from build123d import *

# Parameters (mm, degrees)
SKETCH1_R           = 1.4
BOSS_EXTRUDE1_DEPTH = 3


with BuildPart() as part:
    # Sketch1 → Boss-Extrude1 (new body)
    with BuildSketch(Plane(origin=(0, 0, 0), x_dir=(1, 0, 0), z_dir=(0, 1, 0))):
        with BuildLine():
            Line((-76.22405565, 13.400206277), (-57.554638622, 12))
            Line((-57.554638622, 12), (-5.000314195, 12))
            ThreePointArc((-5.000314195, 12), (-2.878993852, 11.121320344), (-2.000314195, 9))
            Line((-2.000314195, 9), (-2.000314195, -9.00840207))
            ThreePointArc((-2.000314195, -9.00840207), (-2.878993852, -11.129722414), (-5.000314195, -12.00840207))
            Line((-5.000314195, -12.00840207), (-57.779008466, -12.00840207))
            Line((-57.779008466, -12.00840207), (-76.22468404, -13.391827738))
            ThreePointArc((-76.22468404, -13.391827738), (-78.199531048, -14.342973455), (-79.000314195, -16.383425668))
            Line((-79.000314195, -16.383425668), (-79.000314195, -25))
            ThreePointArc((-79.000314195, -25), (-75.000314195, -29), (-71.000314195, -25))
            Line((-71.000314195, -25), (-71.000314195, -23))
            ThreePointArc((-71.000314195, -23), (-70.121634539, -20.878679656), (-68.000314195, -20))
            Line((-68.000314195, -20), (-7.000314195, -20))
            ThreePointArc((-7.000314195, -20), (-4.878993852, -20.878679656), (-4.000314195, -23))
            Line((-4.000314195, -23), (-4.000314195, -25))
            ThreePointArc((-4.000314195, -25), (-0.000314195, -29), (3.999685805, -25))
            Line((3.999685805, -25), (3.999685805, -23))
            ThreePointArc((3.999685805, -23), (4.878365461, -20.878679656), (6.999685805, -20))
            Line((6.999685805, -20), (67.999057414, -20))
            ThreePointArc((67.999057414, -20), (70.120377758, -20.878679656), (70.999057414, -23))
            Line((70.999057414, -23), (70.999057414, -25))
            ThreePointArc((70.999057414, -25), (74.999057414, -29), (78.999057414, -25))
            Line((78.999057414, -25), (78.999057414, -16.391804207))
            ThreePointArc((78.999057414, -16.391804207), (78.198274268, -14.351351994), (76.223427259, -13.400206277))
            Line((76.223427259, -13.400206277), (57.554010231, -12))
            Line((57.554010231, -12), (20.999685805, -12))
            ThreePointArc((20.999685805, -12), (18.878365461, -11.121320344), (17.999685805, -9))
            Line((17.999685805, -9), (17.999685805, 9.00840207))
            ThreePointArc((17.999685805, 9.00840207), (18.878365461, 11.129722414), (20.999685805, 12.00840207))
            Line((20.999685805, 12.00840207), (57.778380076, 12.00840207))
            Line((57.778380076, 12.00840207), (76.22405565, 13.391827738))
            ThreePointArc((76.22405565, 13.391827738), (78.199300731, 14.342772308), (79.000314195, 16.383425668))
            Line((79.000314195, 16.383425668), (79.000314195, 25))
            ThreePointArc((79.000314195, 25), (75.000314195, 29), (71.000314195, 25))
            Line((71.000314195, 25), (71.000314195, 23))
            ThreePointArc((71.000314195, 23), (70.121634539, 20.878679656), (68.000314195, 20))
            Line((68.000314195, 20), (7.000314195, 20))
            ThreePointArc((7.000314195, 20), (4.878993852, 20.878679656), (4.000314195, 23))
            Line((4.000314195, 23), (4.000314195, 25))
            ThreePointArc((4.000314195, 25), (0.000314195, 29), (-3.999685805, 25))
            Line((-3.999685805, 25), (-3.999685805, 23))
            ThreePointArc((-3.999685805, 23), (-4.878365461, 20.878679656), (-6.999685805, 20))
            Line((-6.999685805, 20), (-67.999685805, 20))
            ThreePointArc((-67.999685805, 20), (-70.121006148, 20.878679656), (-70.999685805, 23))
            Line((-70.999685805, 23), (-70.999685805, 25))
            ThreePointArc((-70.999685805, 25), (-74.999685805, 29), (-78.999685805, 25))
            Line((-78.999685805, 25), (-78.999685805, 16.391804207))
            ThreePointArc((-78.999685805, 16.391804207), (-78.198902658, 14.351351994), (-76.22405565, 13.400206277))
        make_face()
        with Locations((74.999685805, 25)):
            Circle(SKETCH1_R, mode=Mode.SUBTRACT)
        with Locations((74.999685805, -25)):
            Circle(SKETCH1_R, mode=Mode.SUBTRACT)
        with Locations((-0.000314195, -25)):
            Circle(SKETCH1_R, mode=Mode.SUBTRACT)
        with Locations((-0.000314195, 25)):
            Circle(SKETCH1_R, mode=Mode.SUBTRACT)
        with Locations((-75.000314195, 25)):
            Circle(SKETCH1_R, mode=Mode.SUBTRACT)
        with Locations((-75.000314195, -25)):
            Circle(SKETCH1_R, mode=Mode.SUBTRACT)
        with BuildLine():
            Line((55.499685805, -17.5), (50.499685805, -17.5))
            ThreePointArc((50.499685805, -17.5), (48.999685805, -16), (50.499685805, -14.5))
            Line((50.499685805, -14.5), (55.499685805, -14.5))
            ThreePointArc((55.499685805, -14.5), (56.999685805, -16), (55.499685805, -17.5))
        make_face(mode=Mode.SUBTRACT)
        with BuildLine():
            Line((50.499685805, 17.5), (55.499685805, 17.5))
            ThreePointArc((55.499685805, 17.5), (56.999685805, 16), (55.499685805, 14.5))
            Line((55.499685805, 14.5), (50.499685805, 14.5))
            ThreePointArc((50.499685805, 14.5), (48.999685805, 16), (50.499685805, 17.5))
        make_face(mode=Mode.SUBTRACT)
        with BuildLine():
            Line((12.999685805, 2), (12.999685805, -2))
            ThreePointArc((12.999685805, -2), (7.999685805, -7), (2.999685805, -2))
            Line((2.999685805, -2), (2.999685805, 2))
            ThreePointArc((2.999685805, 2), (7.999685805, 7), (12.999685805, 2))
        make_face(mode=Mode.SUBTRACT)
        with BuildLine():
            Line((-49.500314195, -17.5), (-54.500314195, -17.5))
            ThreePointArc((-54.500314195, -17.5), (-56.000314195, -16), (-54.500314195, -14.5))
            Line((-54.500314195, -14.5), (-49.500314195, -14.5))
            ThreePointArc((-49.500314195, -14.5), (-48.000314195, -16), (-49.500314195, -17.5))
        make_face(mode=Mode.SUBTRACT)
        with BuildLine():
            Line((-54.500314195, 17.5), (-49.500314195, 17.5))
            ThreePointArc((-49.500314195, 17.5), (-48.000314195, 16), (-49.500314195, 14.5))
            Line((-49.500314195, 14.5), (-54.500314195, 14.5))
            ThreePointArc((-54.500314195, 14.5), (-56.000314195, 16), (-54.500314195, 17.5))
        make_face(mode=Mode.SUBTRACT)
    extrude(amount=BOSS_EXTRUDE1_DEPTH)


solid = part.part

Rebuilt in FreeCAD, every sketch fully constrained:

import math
import FreeCAD as App
import Part
import Sketcher

V = App.Vector

doc = App.newDocument("Part")
body = doc.addObject("PartDesign::Body", "Body")

# Sketch on XZ plane
sketch1 = body.newObject("Sketcher::SketchObject", "Sketch")
sketch1.AttachmentSupport = (doc.getObject("XZ_Plane"), [""])
sketch1.MapMode = "FlatFace"
sketch1.addGeometry([
    Part.LineSegment(V(-76.224056, -13.400206, 0), V(-57.554639, -12, 0)),  # 0
    Part.LineSegment(V(-57.554639, -12, 0), V(-5.000314, -12, 0)),  # 1
    Part.ArcOfCircle(Part.Circle(V(-5.000314, -9, 0), V(0, 0, 1), 3), math.radians(-90), math.radians(0)),  # 2
    Part.LineSegment(V(-2.000314, -9, 0), V(-2.000314, 9.008402, 0)),  # 3
    Part.ArcOfCircle(Part.Circle(V(-5.000314, 9.008402, 0), V(0, 0, 1), 3), math.radians(0), math.radians(90)),  # 4
    Part.LineSegment(V(-5.000314, 12.008402, 0), V(-57.779008, 12.008402, 0)),  # 5
    Part.LineSegment(V(-57.779008, 12.008402, 0), V(-76.224684, 13.391828, 0)),  # 6
    Part.ArcOfCircle(Part.Circle(V(-76.000314, 16.383426, 0), V(0, 0, 1), 3), math.radians(180), math.radians(265.710847)),  # 7
    Part.LineSegment(V(-79.000314, 16.383426, 0), V(-79.000314, 25, 0)),  # 8
    Part.ArcOfCircle(Part.Circle(V(-75.000314, 25, 0), V(0, 0, 1), 4), math.radians(0), math.radians(180)),  # 9
    Part.LineSegment(V(-71.000314, 25, 0), V(-71.000314, 23, 0)),  # 10
    Part.ArcOfCircle(Part.Circle(V(-68.000314, 23, 0), V(0, 0, 1), 3), math.radians(180), math.radians(270)),  # 11
    Part.LineSegment(V(-68.000314, 20, 0), V(-7.000314, 20, 0)),  # 12
    Part.ArcOfCircle(Part.Circle(V(-7.000314, 23, 0), V(0, 0, 1), 3), math.radians(-90), math.radians(0)),  # 13
    Part.LineSegment(V(-4.000314, 23, 0), V(-4.000314, 25, 0)),  # 14
    Part.ArcOfCircle(Part.Circle(V(-0.000314, 25, 0), V(0, 0, 1), 4), math.radians(0), math.radians(180)),  # 15
    Part.LineSegment(V(3.999686, 25, 0), V(3.999686, 23, 0)),  # 16
    Part.ArcOfCircle(Part.Circle(V(6.999686, 23, 0), V(0, 0, 1), 3), math.radians(180), math.radians(270)),  # 17
    Part.LineSegment(V(6.999686, 20, 0), V(67.999057, 20, 0)),  # 18
    Part.ArcOfCircle(Part.Circle(V(67.999057, 23, 0), V(0, 0, 1), 3), math.radians(-90), math.radians(0)),  # 19
    Part.LineSegment(V(70.999057, 23, 0), V(70.999057, 25, 0)),  # 20
    Part.ArcOfCircle(Part.Circle(V(74.999057, 25, 0), V(0, 0, 1), 4), math.radians(0), math.radians(180)),  # 21
    Part.LineSegment(V(78.999057, 25, 0), V(78.999057, 16.391804, 0)),  # 22
    Part.ArcOfCircle(Part.Circle(V(75.999057, 16.391804, 0), V(0, 0, 1), 3), math.radians(-85.710847), math.radians(0)),  # 23
    Part.LineSegment(V(76.223427, 13.400206, 0), V(57.55401, 12, 0)),  # 24
    Part.LineSegment(V(57.55401, 12, 0), V(20.999686, 12, 0)),  # 25
    Part.ArcOfCircle(Part.Circle(V(20.999686, 9, 0), V(0, 0, 1), 3), math.radians(90), math.radians(180)),  # 26
    Part.LineSegment(V(17.999686, 9, 0), V(17.999686, -9.008402, 0)),  # 27
    Part.ArcOfCircle(Part.Circle(V(20.999686, -9.008402, 0), V(0, 0, 1), 3), math.radians(180), math.radians(270)),  # 28
    Part.LineSegment(V(20.999686, -12.008402, 0), V(57.77838, -12.008402, 0)),  # 29
    Part.LineSegment(V(57.77838, -12.008402, 0), V(76.224056, -13.391828, 0)),  # 30
    Part.ArcOfCircle(Part.Circle(V(76.000314, -16.383473, 0), V(0, 0, 1), 3), math.radians(0.000899), math.radians(85.722882)),  # 31
    Part.LineSegment(V(79.000314, -16.383426, 0), V(79.000314, -25, 0)),  # 32
    Part.ArcOfCircle(Part.Circle(V(75.000314, -25, 0), V(0, 0, 1), 4), math.radians(180), math.radians(360)),  # 33
    Part.LineSegment(V(71.000314, -25, 0), V(71.000314, -23, 0)),  # 34
    Part.ArcOfCircle(Part.Circle(V(68.000314, -23, 0), V(0, 0, 1), 3), math.radians(0), math.radians(90)),  # 35
    Part.LineSegment(V(68.000314, -20, 0), V(7.000314, -20, 0)),  # 36
    Part.ArcOfCircle(Part.Circle(V(7.000314, -23, 0), V(0, 0, 1), 3), math.radians(90), math.radians(180)),  # 37
    Part.LineSegment(V(4.000314, -23, 0), V(4.000314, -25, 0)),  # 38
    Part.ArcOfCircle(Part.Circle(V(0.000314, -25, 0), V(0, 0, 1), 4), math.radians(180), math.radians(360)),  # 39
    Part.LineSegment(V(-3.999686, -25, 0), V(-3.999686, -23, 0)),  # 40
    Part.ArcOfCircle(Part.Circle(V(-6.999686, -23, 0), V(0, 0, 1), 3), math.radians(0), math.radians(90)),  # 41
    Part.LineSegment(V(-6.999686, -20, 0), V(-67.999686, -20, 0)),  # 42
    Part.ArcOfCircle(Part.Circle(V(-67.999686, -23, 0), V(0, 0, 1), 3), math.radians(90), math.radians(180)),  # 43
    Part.LineSegment(V(-70.999686, -23, 0), V(-70.999686, -25, 0)),  # 44
    Part.ArcOfCircle(Part.Circle(V(-74.999686, -25, 0), V(0, 0, 1), 4), math.radians(180), math.radians(360)),  # 45
    Part.LineSegment(V(-78.999686, -25, 0), V(-78.999686, -16.391804, 0)),  # 46
    Part.ArcOfCircle(Part.Circle(V(-75.999686, -16.391804, 0), V(0, 0, 1), 3), math.radians(94.289153), math.radians(180)),  # 47
    Part.Circle(V(-75.000314, 25, 0), V(0, 0, 1), 1.4),  # 48
    Part.ArcOfCircle(Part.Circle(V(-49.500314, 16, 0), V(0, 0, 1), 1.5), math.radians(-90), math.radians(90)),  # 49
    Part.LineSegment(V(-49.500314, 17.5, 0), V(-54.500314, 17.5, 0)),  # 50
    Part.ArcOfCircle(Part.Circle(V(-54.500314, 16, 0), V(0, 0, 1), 1.5), math.radians(90), math.radians(270)),  # 51
    Part.LineSegment(V(-54.500314, 14.5, 0), V(-49.500314, 14.5, 0)),  # 52
    Part.Circle(V(-0.000314, 25, 0), V(0, 0, 1), 1.4),  # 53
    Part.Circle(V(74.999686, 25, 0), V(0, 0, 1), 1.4),  # 54
    Part.ArcOfCircle(Part.Circle(V(55.499686, 16, 0), V(0, 0, 1), 1.5), math.radians(-90), math.radians(90)),  # 55
    Part.LineSegment(V(55.499686, 17.5, 0), V(50.499686, 17.5, 0)),  # 56
    Part.ArcOfCircle(Part.Circle(V(50.499686, 16, 0), V(0, 0, 1), 1.5), math.radians(90), math.radians(270)),  # 57
    Part.LineSegment(V(50.499686, 14.5, 0), V(55.499686, 14.5, 0)),  # 58
    Part.ArcOfCircle(Part.Circle(V(-54.500314, -16, 0), V(0, 0, 1), 1.5), math.radians(90), math.radians(270)),  # 59
    Part.LineSegment(V(-54.500314, -17.5, 0), V(-49.500314, -17.5, 0)),  # 60
    Part.ArcOfCircle(Part.Circle(V(-49.500314, -16, 0), V(0, 0, 1), 1.5), math.radians(-90), math.radians(90)),  # 61
    Part.LineSegment(V(-49.500314, -14.5, 0), V(-54.500314, -14.5, 0)),  # 62
    Part.Circle(V(-75.000314, -25, 0), V(0, 0, 1), 1.4),  # 63
    Part.Circle(V(-0.000314, -25, 0), V(0, 0, 1), 1.4),  # 64
    Part.ArcOfCircle(Part.Circle(V(7.999686, -2, 0), V(0, 0, 1), 5), math.radians(180), math.radians(360)),  # 65
    Part.LineSegment(V(12.999686, -2, 0), V(12.999686, 2, 0)),  # 66
    Part.ArcOfCircle(Part.Circle(V(7.999686, 2, 0), V(0, 0, 1), 5), math.radians(0), math.radians(180)),  # 67
    Part.LineSegment(V(2.999686, 2, 0), V(2.999686, -2, 0)),  # 68
    Part.ArcOfCircle(Part.Circle(V(50.499686, -16, 0), V(0, 0, 1), 1.5), math.radians(90), math.radians(270)),  # 69
    Part.LineSegment(V(50.499686, -17.5, 0), V(55.499686, -17.5, 0)),  # 70
    Part.ArcOfCircle(Part.Circle(V(55.499686, -16, 0), V(0, 0, 1), 1.5), math.radians(-90), math.radians(90)),  # 71
    Part.LineSegment(V(55.499686, -14.5, 0), V(50.499686, -14.5, 0)),  # 72
    Part.Circle(V(74.999686, -25, 0), V(0, 0, 1), 1.4),  # 73
], False)
sketch1.addConstraint([
    Sketcher.Constraint("Coincident", 0, 2, 1, 1),
    Sketcher.Constraint("Tangent", 1, 2, 2, 1),
    Sketcher.Constraint("Tangent", 2, 2, 3, 1),
    Sketcher.Constraint("Tangent", 3, 2, 4, 1),
    Sketcher.Constraint("Tangent", 4, 2, 5, 1),
    Sketcher.Constraint("Coincident", 5, 2, 6, 1),
    Sketcher.Constraint("Tangent", 6, 2, 7, 2),
    Sketcher.Constraint("Tangent", 7, 1, 8, 1),
    Sketcher.Constraint("Tangent", 8, 2, 9, 2),
    Sketcher.Constraint("Tangent", 9, 1, 10, 1),
    Sketcher.Constraint("Tangent", 10, 2, 11, 1),
    Sketcher.Constraint("Tangent", 11, 2, 12, 1),
    Sketcher.Constraint("Tangent", 12, 2, 13, 1),
    Sketcher.Constraint("Tangent", 13, 2, 14, 1),
    Sketcher.Constraint("Tangent", 14, 2, 15, 2),
    Sketcher.Constraint("Tangent", 15, 1, 16, 1),
    Sketcher.Constraint("Tangent", 16, 2, 17, 1),
    Sketcher.Constraint("Tangent", 17, 2, 18, 1),
    Sketcher.Constraint("Tangent", 18, 2, 19, 1),
    Sketcher.Constraint("Tangent", 19, 2, 20, 1),
    Sketcher.Constraint("Tangent", 20, 2, 21, 2),
    Sketcher.Constraint("Tangent", 21, 1, 22, 1),
    Sketcher.Constraint("Tangent", 22, 2, 23, 2),
    Sketcher.Constraint("Tangent", 23, 1, 24, 1),
    Sketcher.Constraint("Coincident", 24, 2, 25, 1),
    Sketcher.Constraint("Tangent", 25, 2, 26, 1),
    Sketcher.Constraint("Tangent", 26, 2, 27, 1),
    Sketcher.Constraint("Tangent", 27, 2, 28, 1),
    Sketcher.Constraint("Tangent", 28, 2, 29, 1),
    Sketcher.Constraint("Coincident", 29, 2, 30, 1),
    Sketcher.Constraint("Coincident", 30, 2, 31, 2),
    Sketcher.Constraint("Coincident", 31, 1, 32, 1),
    Sketcher.Constraint("Tangent", 32, 2, 33, 2),
    Sketcher.Constraint("Tangent", 33, 1, 34, 1),
    Sketcher.Constraint("Tangent", 34, 2, 35, 1),
    Sketcher.Constraint("Tangent", 35, 2, 36, 1),
    Sketcher.Constraint("Tangent", 36, 2, 37, 1),
    Sketcher.Constraint("Tangent", 37, 2, 38, 1),
    Sketcher.Constraint("Tangent", 38, 2, 39, 2),
    Sketcher.Constraint("Tangent", 39, 1, 40, 1),
    Sketcher.Constraint("Tangent", 40, 2, 41, 1),
    Sketcher.Constraint("Tangent", 41, 2, 42, 1),
    Sketcher.Constraint("Tangent", 42, 2, 43, 1),
    Sketcher.Constraint("Tangent", 43, 2, 44, 1),
    Sketcher.Constraint("Tangent", 44, 2, 45, 2),
    Sketcher.Constraint("Tangent", 45, 1, 46, 1),
    Sketcher.Constraint("Tangent", 46, 2, 47, 2),
    Sketcher.Constraint("Tangent", 47, 1, 0, 1),
    Sketcher.Constraint("Tangent", 49, 2, 50, 1),
    Sketcher.Constraint("Tangent", 50, 2, 51, 1),
    Sketcher.Constraint("Tangent", 51, 2, 52, 1),
    Sketcher.Constraint("Tangent", 52, 2, 49, 1),
    Sketcher.Constraint("Tangent", 55, 2, 56, 1),
    Sketcher.Constraint("Tangent", 56, 2, 57, 1),
    Sketcher.Constraint("Tangent", 57, 2, 58, 1),
    Sketcher.Constraint("Tangent", 58, 2, 55, 1),
    Sketcher.Constraint("Tangent", 59, 2, 60, 1),
    Sketcher.Constraint("Tangent", 60, 2, 61, 1),
    Sketcher.Constraint("Tangent", 61, 2, 62, 1),
    Sketcher.Constraint("Tangent", 62, 2, 59, 1),
    Sketcher.Constraint("Tangent", 65, 2, 66, 1),
    Sketcher.Constraint("Tangent", 66, 2, 67, 1),
    Sketcher.Constraint("Tangent", 67, 2, 68, 1),
    Sketcher.Constraint("Tangent", 68, 2, 65, 1),
    Sketcher.Constraint("Tangent", 69, 2, 70, 1),
    Sketcher.Constraint("Tangent", 70, 2, 71, 1),
    Sketcher.Constraint("Tangent", 71, 2, 72, 1),
    Sketcher.Constraint("Tangent", 72, 2, 69, 1),
    Sketcher.Constraint("Horizontal", 1),
    Sketcher.Constraint("Vertical", 3),
    Sketcher.Constraint("Horizontal", 5),
    Sketcher.Constraint("Vertical", 8),
    Sketcher.Constraint("Vertical", 10),
    Sketcher.Constraint("Horizontal", 12),
    Sketcher.Constraint("Vertical", 14),
    Sketcher.Constraint("Vertical", 16),
    Sketcher.Constraint("Horizontal", 18),
    Sketcher.Constraint("Vertical", 20),
    Sketcher.Constraint("Vertical", 22),
    Sketcher.Constraint("Horizontal", 25),
    Sketcher.Constraint("Vertical", 27),
    Sketcher.Constraint("Horizontal", 29),
    Sketcher.Constraint("Vertical", 32),
    Sketcher.Constraint("Vertical", 34),
    Sketcher.Constraint("Horizontal", 36),
    Sketcher.Constraint("Vertical", 38),
    Sketcher.Constraint("Vertical", 40),
    Sketcher.Constraint("Horizontal", 42),
    Sketcher.Constraint("Vertical", 44),
    Sketcher.Constraint("Vertical", 46),
    Sketcher.Constraint("Horizontal", 50),
    Sketcher.Constraint("Horizontal", 52),
    Sketcher.Constraint("Horizontal", 56),
    Sketcher.Constraint("Horizontal", 58),
    Sketcher.Constraint("Horizontal", 60),
    Sketcher.Constraint("Horizontal", 62),
    Sketcher.Constraint("Vertical", 66),
    Sketcher.Constraint("Vertical", 68),
    Sketcher.Constraint("Horizontal", 70),
    Sketcher.Constraint("Horizontal", 72),
    Sketcher.Constraint("Coincident", 48, 3, 9, 3),
    Sketcher.Constraint("Coincident", 53, 3, 15, 3),
    Sketcher.Constraint("Equal", 2, 4),
    Sketcher.Constraint("Equal", 4, 7),
    Sketcher.Constraint("Equal", 7, 11),
    Sketcher.Constraint("Equal", 11, 13),
    Sketcher.Constraint("Equal", 9, 15),
    Sketcher.Constraint("Equal", 13, 17),
    Sketcher.Constraint("Equal", 17, 19),
    Sketcher.Constraint("Equal", 15, 21),
    Sketcher.Constraint("Equal", 19, 23),
    Sketcher.Constraint("Equal", 23, 26),
    Sketcher.Constraint("Equal", 26, 28),
    Sketcher.Constraint("Equal", 28, 31),
    Sketcher.Constraint("Equal", 21, 33),
    Sketcher.Constraint("Equal", 31, 35),
    Sketcher.Constraint("Equal", 35, 37),
    Sketcher.Constraint("Equal", 33, 39),
    Sketcher.Constraint("Equal", 37, 41),
    Sketcher.Constraint("Equal", 41, 43),
    Sketcher.Constraint("Equal", 39, 45),
    Sketcher.Constraint("Equal", 43, 47),
    Sketcher.Constraint("Equal", 48, 53),
    Sketcher.Constraint("Equal", 53, 54),
    Sketcher.Constraint("Equal", 51, 55),
    Sketcher.Constraint("Equal", 57, 59),
    Sketcher.Constraint("Equal", 54, 63),
    Sketcher.Constraint("Equal", 63, 64),
    Sketcher.Constraint("Equal", 61, 69),
    Sketcher.Constraint("Equal", 64, 73),
    Sketcher.Constraint("Symmetric", 9, 3, 33, 3, -1, 1),
    Sketcher.Constraint("Symmetric", 13, 3, 37, 3, -1, 1),
    Sketcher.Constraint("Symmetric", 45, 3, 54, 3, -1, 1),
    Sketcher.Constraint("Symmetric", 33, 3, 63, 3, -2),
    Sketcher.Constraint("Symmetric", 39, 3, 64, 3, -2),
    Sketcher.Constraint("Symmetric", 45, 3, 73, 3, -2),
    Sketcher.Constraint("Symmetric", 51, 3, 59, 3, -1),
    Sketcher.Constraint("Symmetric", 57, 3, 69, 3, -1),
    Sketcher.Constraint("Parallel", 0, 24),
    Sketcher.Constraint("Parallel", 6, 30),
    Sketcher.Constraint("Horizontal", 9, 3, 15, 3),
    Sketcher.Constraint("Horizontal", 13, 3, 17, 3),
    Sketcher.Constraint("Horizontal", 15, 3, 21, 3),
    Sketcher.Constraint("Horizontal", 33, 3, 39, 3),
    Sketcher.Constraint("Horizontal", 37, 3, 41, 3),
    Sketcher.Constraint("Horizontal", 39, 3, 45, 3),
    Sketcher.Constraint("Horizontal", 51, 3, 55, 3),
    Sketcher.Constraint("Vertical", 49, 3, 61, 3),
    Sketcher.Constraint("Vertical", 55, 3, 71, 3),
    Sketcher.Constraint("Equal", 36, 42),
    Sketcher.Constraint("Equal", 52, 56),
    Sketcher.Constraint("Equal", 3, 27),
    Sketcher.Constraint("Equal", 8, 32),
    Sketcher.Constraint("Equal", 22, 46),
    Sketcher.Constraint("Equal", 0, 24),
    Sketcher.Constraint("Equal", 6, 30),
    Sketcher.Constraint("Radius", 2, 3.0),
    Sketcher.Constraint("Radius", 9, 4.0),
    Sketcher.Constraint("Radius", 65, 5.0),
    Sketcher.Constraint("Diameter", 48, 2.8),
    Sketcher.Constraint("Radius", 49, 1.5),
    Sketcher.Constraint("DistanceX", 12, 1, 12, 2, 61.0),
    Sketcher.Constraint("DistanceX", 50, 2, 50, 1, 5.0),
    Sketcher.Constraint("DistanceY", 10, 2, 10, 1, 2.0),
    Sketcher.Constraint("DistanceY", 66, 1, 66, 2, 4.0),
    Sketcher.Constraint("DistanceY", 2, 3, -1, 1, 9.0),
    Sketcher.Constraint("DistanceY", -1, 1, 9, 3, 25.0),
    Sketcher.Constraint("DistanceY", -1, 1, 49, 3, 16.0),
    Sketcher.Constraint("DistanceY", 65, 3, -1, 1, 2.0),
    Sketcher.Constraint("DistanceX", 18, 1, 18, 2, 60.999372),
    Sketcher.Constraint("Distance", 0, 18.721851),
    Sketcher.Constraint("Distance", 6, 18.497481),
    Sketcher.Constraint("DistanceX", 1, 1, 1, 2, 52.554324),
    Sketcher.Constraint("DistanceX", 5, 2, 5, 1, 52.778694),
    Sketcher.Constraint("DistanceX", 25, 2, 25, 1, 36.554324),
    Sketcher.Constraint("DistanceX", 29, 1, 29, 2, 36.778694),
    Sketcher.Constraint("DistanceY", 3, 1, 3, 2, 18.008402),
    Sketcher.Constraint("DistanceY", 8, 1, 8, 2, 8.616574),
    Sketcher.Constraint("DistanceY", 22, 2, 22, 1, 8.608196),
    Sketcher.Constraint("DistanceX", 49, 3, -1, 1, 49.500314),
    Sketcher.Constraint("DistanceX", -1, 1, 55, 3, 55.499686),
    Sketcher.Constraint("DistanceX", -1, 1, 65, 3, 7.999686),
])
pad1 = body.newObject("PartDesign::Pad", "Pad")
pad1.Profile = sketch1
pad1.Length = 3
pad1.Reversed = True

doc.recompute()
